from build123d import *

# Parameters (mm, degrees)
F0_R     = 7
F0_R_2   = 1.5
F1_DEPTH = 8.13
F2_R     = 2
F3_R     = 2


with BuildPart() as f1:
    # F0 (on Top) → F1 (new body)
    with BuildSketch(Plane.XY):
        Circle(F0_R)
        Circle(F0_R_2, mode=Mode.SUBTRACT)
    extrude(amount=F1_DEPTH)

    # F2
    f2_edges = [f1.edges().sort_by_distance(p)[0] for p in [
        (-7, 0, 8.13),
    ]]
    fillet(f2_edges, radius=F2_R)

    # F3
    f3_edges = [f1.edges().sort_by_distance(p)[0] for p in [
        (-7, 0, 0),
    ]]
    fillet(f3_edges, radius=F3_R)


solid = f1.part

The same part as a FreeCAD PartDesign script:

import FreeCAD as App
import Part
import Sketcher

V = App.Vector


def edges_at(feature, points):
    """Names of the edges that pass closest to the given points."""
    edges = feature.Shape.Edges
    near = lambda p: min(range(len(edges)), key=lambda i: edges[i].distToShape(Part.Vertex(*p))[0])
    return sorted({f"Edge{near(p) + 1}" for p in points})

doc = App.newDocument("Part")
params = doc.addObject("Spreadsheet::Sheet", "Params")
for row, (alias, value) in enumerate([
    ("sketch1_diameter", "14 mm"),
    ("sketch1_diameter2", "3 mm"),
    ("pad1_length", "8.13 mm"),
    ("fillet_radius", "2 mm"),
    ("fillet2_radius", "2 mm"),
], start=1):
    params.set(f"A{row}", alias)
    params.set(f"B{row}", "=" + value)
    params.setAlias(f"B{row}", alias)

body = doc.addObject("PartDesign::Body", "Body")

# Sketch on XY plane
sketch1 = body.newObject("Sketcher::SketchObject", "Sketch")
sketch1.AttachmentSupport = (doc.getObject("XY_Plane"), [""])
sketch1.MapMode = "FlatFace"
sketch1.addGeometry([
    Part.Circle(V(0, 0, 0), V(0, 0, 1), 7),
    Part.Circle(V(0, 0, 0), V(0, 0, 1), 1.5),
], False)
sketch1.addConstraint([
    Sketcher.Constraint("Coincident", 0, 3, -1, 1),
    Sketcher.Constraint("Coincident", 1, 3, -1, 1),
    Sketcher.Constraint("Diameter", 0, 14.0),
    Sketcher.Constraint("Diameter", 1, 3.0),
])
sketch1.setExpression("Constraints[2]", "Params.sketch1_diameter")
sketch1.setExpression("Constraints[3]", "Params.sketch1_diameter2")
pad1 = body.newObject("PartDesign::Pad", "Pad")
pad1.Profile = sketch1
pad1.setExpression("Length", "Params.pad1_length")
doc.recompute()

fillet = body.newObject("PartDesign::Fillet", "Fillet")
fillet.Base = (pad1, edges_at(pad1, [(-7, 0, 8.13)]))
fillet.setExpression("Radius", "Params.fillet_radius")
doc.recompute()

fillet2 = body.newObject("PartDesign::Fillet", "Fillet001")
fillet2.Base = (fillet, edges_at(fillet, [(-7, 0, 0)]))
fillet2.setExpression("Radius", "Params.fillet2_radius")

doc.recompute()
